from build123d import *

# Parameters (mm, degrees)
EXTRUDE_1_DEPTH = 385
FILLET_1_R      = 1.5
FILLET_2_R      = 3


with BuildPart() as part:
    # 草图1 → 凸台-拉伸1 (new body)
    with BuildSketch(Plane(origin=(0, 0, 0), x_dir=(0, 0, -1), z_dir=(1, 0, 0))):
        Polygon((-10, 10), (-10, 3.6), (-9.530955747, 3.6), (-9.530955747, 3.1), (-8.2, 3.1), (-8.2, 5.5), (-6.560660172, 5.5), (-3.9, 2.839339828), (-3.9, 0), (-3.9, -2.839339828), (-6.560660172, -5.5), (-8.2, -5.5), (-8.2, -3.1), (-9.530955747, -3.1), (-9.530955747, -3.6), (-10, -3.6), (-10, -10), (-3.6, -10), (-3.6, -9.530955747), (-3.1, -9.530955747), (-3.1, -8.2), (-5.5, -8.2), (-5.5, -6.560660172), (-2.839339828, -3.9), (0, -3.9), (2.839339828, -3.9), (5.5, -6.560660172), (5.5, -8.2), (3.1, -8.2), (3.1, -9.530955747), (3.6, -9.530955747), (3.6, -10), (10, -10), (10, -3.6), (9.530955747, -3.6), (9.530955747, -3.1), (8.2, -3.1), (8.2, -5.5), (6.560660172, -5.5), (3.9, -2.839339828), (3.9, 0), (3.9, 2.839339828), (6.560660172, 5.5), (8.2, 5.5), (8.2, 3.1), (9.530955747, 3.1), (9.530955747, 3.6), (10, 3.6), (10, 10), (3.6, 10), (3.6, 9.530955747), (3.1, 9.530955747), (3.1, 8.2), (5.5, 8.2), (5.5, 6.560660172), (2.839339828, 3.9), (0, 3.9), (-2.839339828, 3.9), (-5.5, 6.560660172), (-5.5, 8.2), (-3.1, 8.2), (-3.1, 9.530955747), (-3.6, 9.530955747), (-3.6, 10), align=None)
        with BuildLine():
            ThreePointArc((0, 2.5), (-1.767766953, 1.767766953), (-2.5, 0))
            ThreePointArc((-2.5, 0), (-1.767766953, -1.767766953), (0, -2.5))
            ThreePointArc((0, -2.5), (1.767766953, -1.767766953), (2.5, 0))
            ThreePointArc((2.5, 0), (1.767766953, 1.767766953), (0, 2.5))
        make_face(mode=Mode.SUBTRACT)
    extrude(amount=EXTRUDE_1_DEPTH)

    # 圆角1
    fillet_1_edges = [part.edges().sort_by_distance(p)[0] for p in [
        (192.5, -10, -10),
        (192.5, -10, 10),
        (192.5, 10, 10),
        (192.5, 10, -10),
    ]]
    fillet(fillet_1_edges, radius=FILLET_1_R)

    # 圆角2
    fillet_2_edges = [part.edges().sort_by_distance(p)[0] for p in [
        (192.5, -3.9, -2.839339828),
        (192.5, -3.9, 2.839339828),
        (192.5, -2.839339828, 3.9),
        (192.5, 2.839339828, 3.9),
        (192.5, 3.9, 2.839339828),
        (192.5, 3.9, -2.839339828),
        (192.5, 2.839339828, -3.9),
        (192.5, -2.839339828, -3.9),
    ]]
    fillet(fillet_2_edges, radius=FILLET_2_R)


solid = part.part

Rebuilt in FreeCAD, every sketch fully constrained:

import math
import FreeCAD as App
import Part
import Sketcher
Q = App.Units.Quantity


def edges_at(feature, points):
    """Names of the edges that pass closest to the given points."""
    edges = feature.Shape.Edges
    near = lambda p: min(range(len(edges)), key=lambda i: edges[i].distToShape(Part.Vertex(*p))[0])
    return sorted({f"Edge{near(p) + 1}" for p in points})

doc = App.newDocument("Part")
body = doc.addObject("PartDesign::Body", "Body")

# Sketch on YZ plane
sketch1 = body.newObject("Sketcher::SketchObject", "Sketch")
sketch1.AttachmentSupport = (doc.getObject("YZ_Plane"), [""])
sketch1.MapMode = "FlatFace"
sketch1.addGeometry([
    Part.LineSegment(App.Vector(10, 10, 0), App.Vector(3.6, 10, 0)),  # 0
    Part.LineSegment(App.Vector(3.6, 10, 0), App.Vector(3.6, 9.53, 0)),  # 1
    Part.LineSegment(App.Vector(3.6, 9.53, 0), App.Vector(3.1, 9.53, 0)),  # 2
    Part.LineSegment(App.Vector(3.1, 9.53, 0), App.Vector(3.1, 8.2, 0)),  # 3
    Part.LineSegment(App.Vector(3.1, 8.2, 0), App.Vector(5.5, 8.2, 0)),  # 4
    Part.LineSegment(App.Vector(5.5, 8.2, 0), App.Vector(5.5, 6.56, 0)),  # 5
    Part.LineSegment(App.Vector(5.5, 6.56, 0), App.Vector(2.84, 3.9, 0)),  # 6
    Part.LineSegment(App.Vector(2.84, 3.9, 0), App.Vector(-2.84, 3.9, 0)),  # 7
    Part.LineSegment(App.Vector(-2.84, 3.9, 0), App.Vector(-5.5, 6.56, 0)),  # 8
    Part.LineSegment(App.Vector(-5.5, 6.56, 0), App.Vector(-5.5, 8.2, 0)),  # 9
    Part.LineSegment(App.Vector(-5.5, 8.2, 0), App.Vector(-3.1, 8.2, 0)),  # 10
    Part.LineSegment(App.Vector(-3.1, 8.2, 0), App.Vector(-3.1, 9.53, 0)),  # 11
    Part.LineSegment(App.Vector(-3.1, 9.53, 0), App.Vector(-3.6, 9.53, 0)),  # 12
    Part.LineSegment(App.Vector(-3.6, 9.53, 0), App.Vector(-3.6, 10, 0)),  # 13
    Part.LineSegment(App.Vector(-3.6, 10, 0), App.Vector(-10, 10, 0)),  # 14
    Part.LineSegment(App.Vector(-10, 10, 0), App.Vector(-10, 3.6, 0)),  # 15
    Part.LineSegment(App.Vector(-10, 3.6, 0), App.Vector(-9.53, 3.6, 0)),  # 16
    Part.LineSegment(App.Vector(-9.53, 3.6, 0), App.Vector(-9.53, 3.1, 0)),  # 17
    Part.LineSegment(App.Vector(-9.53, 3.1, 0), App.Vector(-8.2, 3.1, 0)),  # 18
    Part.LineSegment(App.Vector(-8.2, 3.1, 0), App.Vector(-8.2, 5.5, 0)),  # 19
    Part.LineSegment(App.Vector(-8.2, 5.5, 0), App.Vector(-6.56, 5.5, 0)),  # 20
    Part.LineSegment(App.Vector(-6.56, 5.5, 0), App.Vector(-3.9, 2.84, 0)),  # 21
    Part.LineSegment(App.Vector(-3.9, 2.84, 0), App.Vector(-3.9, -2.84, 0)),  # 22
    Part.LineSegment(App.Vector(-3.9, -2.84, 0), App.Vector(-6.56, -5.5, 0)),  # 23
    Part.LineSegment(App.Vector(-6.56, -5.5, 0), App.Vector(-8.2, -5.5, 0)),  # 24
    Part.LineSegment(App.Vector(-8.2, -5.5, 0), App.Vector(-8.2, -3.1, 0)),  # 25
    Part.LineSegment(App.Vector(-8.2, -3.1, 0), App.Vector(-9.53, -3.1, 0)),  # 26
    Part.LineSegment(App.Vector(-9.53, -3.1, 0), App.Vector(-9.53, -3.6, 0)),  # 27
    Part.LineSegment(App.Vector(-9.53, -3.6, 0), App.Vector(-10, -3.6, 0)),  # 28
    Part.LineSegment(App.Vector(-10, -3.6, 0), App.Vector(-10, -10, 0)),  # 29
    Part.LineSegment(App.Vector(-10, -10, 0), App.Vector(-3.6, -10, 0)),  # 30
    Part.LineSegment(App.Vector(-3.6, -10, 0), App.Vector(-3.6, -9.53, 0)),  # 31
    Part.LineSegment(App.Vector(-3.6, -9.53, 0), App.Vector(-3.1, -9.53, 0)),  # 32
    Part.LineSegment(App.Vector(-3.1, -9.53, 0), App.Vector(-3.1, -8.2, 0)),  # 33
    Part.LineSegment(App.Vector(-3.1, -8.2, 0), App.Vector(-5.5, -8.2, 0)),  # 34
    Part.LineSegment(App.Vector(-5.5, -8.2, 0), App.Vector(-5.5, -6.56, 0)),  # 35
    Part.LineSegment(App.Vector(-5.5, -6.56, 0), App.Vector(-2.84, -3.9, 0)),  # 36
    Part.LineSegment(App.Vector(-2.84, -3.9, 0), App.Vector(2.84, -3.9, 0)),  # 37
    Part.LineSegment(App.Vector(2.84, -3.9, 0), App.Vector(5.5, -6.56, 0)),  # 38
    Part.LineSegment(App.Vector(5.5, -6.56, 0), App.Vector(5.5, -8.2, 0)),  # 39
    Part.LineSegment(App.Vector(5.5, -8.2, 0), App.Vector(3.1, -8.2, 0)),  # 40
    Part.LineSegment(App.Vector(3.1, -8.2, 0), App.Vector(3.1, -9.53, 0)),  # 41
    Part.LineSegment(App.Vector(3.1, -9.53, 0), App.Vector(3.6, -9.53, 0)),  # 42
    Part.LineSegment(App.Vector(3.6, -9.53, 0), App.Vector(3.6, -10, 0)),  # 43
    Part.LineSegment(App.Vector(3.6, -10, 0), App.Vector(10, -10, 0)),  # 44
    Part.LineSegment(App.Vector(10, -10, 0), App.Vector(10, -3.6, 0)),  # 45
    Part.LineSegment(App.Vector(10, -3.6, 0), App.Vector(9.53, -3.6, 0)),  # 46
    Part.LineSegment(App.Vector(9.53, -3.6, 0), App.Vector(9.53, -3.1, 0)),  # 47
    Part.LineSegment(App.Vector(9.53, -3.1, 0), App.Vector(8.2, -3.1, 0)),  # 48
    Part.LineSegment(App.Vector(8.2, -3.1, 0), App.Vector(8.2, -5.5, 0)),  # 49
    Part.LineSegment(App.Vector(8.2, -5.5, 0), App.Vector(6.56, -5.5, 0)),  # 50
    Part.LineSegment(App.Vector(6.56, -5.5, 0), App.Vector(3.9, -2.84, 0)),  # 51
    Part.LineSegment(App.Vector(3.9, -2.84, 0), App.Vector(3.9, 2.84, 0)),  # 52
    Part.LineSegment(App.Vector(3.9, 2.84, 0), App.Vector(6.56, 5.5, 0)),  # 53
    Part.LineSegment(App.Vector(6.56, 5.5, 0), App.Vector(8.2, 5.5, 0)),  # 54
    Part.LineSegment(App.Vector(8.2, 5.5, 0), App.Vector(8.2, 3.1, 0)),  # 55
    Part.LineSegment(App.Vector(8.2, 3.1, 0), App.Vector(9.53, 3.1, 0)),  # 56
    Part.LineSegment(App.Vector(9.53, 3.1, 0), App.Vector(9.53, 3.6, 0)),  # 57
    Part.LineSegment(App.Vector(9.53, 3.6, 0), App.Vector(10, 3.6, 0)),  # 58
    Part.LineSegment(App.Vector(10, 3.6, 0), App.Vector(10, 10, 0)),  # 59
    Part.ArcOfCircle(Part.Circle(App.Vector(0, 0, 0), App.Vector(0, 0, 1), 2.5), math.radians(0), math.radians(90)),  # 60
    Part.ArcOfCircle(Part.Circle(App.Vector(0, 0, 0), App.Vector(0, 0, 1), 2.5), math.radians(-90), math.radians(0)),  # 61
    Part.ArcOfCircle(Part.Circle(App.Vector(0, 0, 0), App.Vector(0, 0, 1), 2.5), math.radians(180), math.radians(270)),  # 62
    Part.ArcOfCircle(Part.Circle(App.Vector(0, 0, 0), App.Vector(0, 0, 1), 2.5), math.radians(90), math.radians(180)),  # 63
], False)
sketch1.addConstraint([
    Sketcher.Constraint("Coincident", 0, 2, 1, 1),
    Sketcher.Constraint("Coincident", 1, 2, 2, 1),
    Sketcher.Constraint("Coincident", 2, 2, 3, 1),
    Sketcher.Constraint("Coincident", 3, 2, 4, 1),
    Sketcher.Constraint("Coincident", 4, 2, 5, 1),
    Sketcher.Constraint("Coincident", 5, 2, 6, 1),
    Sketcher.Constraint("Coincident", 6, 2, 7, 1),
    Sketcher.Constraint("Coincident", 7, 2, 8, 1),
    Sketcher.Constraint("Coincident", 8, 2, 9, 1),
    Sketcher.Constraint("Coincident", 9, 2, 10, 1),
    Sketcher.Constraint("Coincident", 10, 2, 11, 1),
    Sketcher.Constraint("Coincident", 11, 2, 12, 1),
    Sketcher.Constraint("Coincident", 12, 2, 13, 1),
    Sketcher.Constraint("Coincident", 13, 2, 14, 1),
    Sketcher.Constraint("Coincident", 14, 2, 15, 1),
    Sketcher.Constraint("Coincident", 15, 2, 16, 1),
    Sketcher.Constraint("Coincident", 16, 2, 17, 1),
    Sketcher.Constraint("Coincident", 17, 2, 18, 1),
    Sketcher.Constraint("Coincident", 18, 2, 19, 1),
    Sketcher.Constraint("Coincident", 19, 2, 20, 1),
    Sketcher.Constraint("Coincident", 20, 2, 21, 1),
    Sketcher.Constraint("Coincident", 21, 2, 22, 1),
    Sketcher.Constraint("Coincident", 22, 2, 23, 1),
    Sketcher.Constraint("Coincident", 23, 2, 24, 1),
    Sketcher.Constraint("Coincident", 24, 2, 25, 1),
    Sketcher.Constraint("Coincident", 25, 2, 26, 1),
    Sketcher.Constraint("Coincident", 26, 2, 27, 1),
    Sketcher.Constraint("Coincident", 27, 2, 28, 1),
    Sketcher.Constraint("Coincident", 28, 2, 29, 1),
    Sketcher.Constraint("Coincident", 29, 2, 30, 1),
    Sketcher.Constraint("Coincident", 30, 2, 31, 1),
    Sketcher.Constraint("Coincident", 31, 2, 32, 1),
    Sketcher.Constraint("Coincident", 32, 2, 33, 1),
    Sketcher.Constraint("Coincident", 33, 2, 34, 1),
    Sketcher.Constraint("Coincident", 34, 2, 35, 1),
    Sketcher.Constraint("Coincident", 35, 2, 36, 1),
    Sketcher.Constraint("Coincident", 36, 2, 37, 1),
    Sketcher.Constraint("Coincident", 37, 2, 38, 1),
    Sketcher.Constraint("Coincident", 38, 2, 39, 1),
    Sketcher.Constraint("Coincident", 39, 2, 40, 1),
    Sketcher.Constraint("Coincident", 40, 2, 41, 1),
    Sketcher.Constraint("Coincident", 41, 2, 42, 1),
    Sketcher.Constraint("Coincident", 42, 2, 43, 1),
    Sketcher.Constraint("Coincident", 43, 2, 44, 1),
    Sketcher.Constraint("Coincident", 44, 2, 45, 1),
    Sketcher.Constraint("Coincident", 45, 2, 46, 1),
    Sketcher.Constraint("Coincident", 46, 2, 47, 1),
    Sketcher.Constraint("Coincident", 47, 2, 48, 1),
    Sketcher.Constraint("Coincident", 48, 2, 49, 1),
    Sketcher.Constraint("Coincident", 49, 2, 50, 1),
    Sketcher.Constraint("Coincident", 50, 2, 51, 1),
    Sketcher.Constraint("Coincident", 51, 2, 52, 1),
    Sketcher.Constraint("Coincident", 52, 2, 53, 1),
    Sketcher.Constraint("Coincident", 53, 2, 54, 1),
    Sketcher.Constraint("Coincident", 54, 2, 55, 1),
    Sketcher.Constraint("Coincident", 55, 2, 56, 1),
    Sketcher.Constraint("Coincident", 56, 2, 57, 1),
    Sketcher.Constraint("Coincident", 57, 2, 58, 1),
    Sketcher.Constraint("Coincident", 58, 2, 59, 1),
    Sketcher.Constraint("Coincident", 59, 2, 0, 1),
    Sketcher.Constraint("Tangent", 60, 1, 61, 2),
    Sketcher.Constraint("Tangent", 61, 1, 62, 2),
    Sketcher.Constraint("Tangent", 62, 1, 63, 2),
    Sketcher.Constraint("Tangent", 63, 1, 60, 2),
    Sketcher.Constraint("Horizontal", 0),
    Sketcher.Constraint("Vertical", 1),
    Sketcher.Constraint("Horizontal", 2),
    Sketcher.Constraint("Vertical", 3),
    Sketcher.Constraint("Horizontal", 4),
    Sketcher.Constraint("Vertical", 5),
    Sketcher.Constraint("Horizontal", 7),
    Sketcher.Constraint("Vertical", 9),
    Sketcher.Constraint("Horizontal", 10),
    Sketcher.Constraint("Vertical", 11),
    Sketcher.Constraint("Horizontal", 12),
    Sketcher.Constraint("Vertical", 13),
    Sketcher.Constraint("Horizontal", 14),
    Sketcher.Constraint("Vertical", 15),
    Sketcher.Constraint("Horizontal", 16),
    Sketcher.Constraint("Vertical", 17),
    Sketcher.Constraint("Horizontal", 18),
    Sketcher.Constraint("Vertical", 19),
    Sketcher.Constraint("Horizontal", 20),
    Sketcher.Constraint("Vertical", 22),
    Sketcher.Constraint("Horizontal", 24),
    Sketcher.Constraint("Vertical", 25),
    Sketcher.Constraint("Horizontal", 26),
    Sketcher.Constraint("Vertical", 27),
    Sketcher.Constraint("Horizontal", 28),
    Sketcher.Constraint("Vertical", 29),
    Sketcher.Constraint("Horizontal", 30),
    Sketcher.Constraint("Vertical", 31),
    Sketcher.Constraint("Horizontal", 32),
    Sketcher.Constraint("Vertical", 33),
    Sketcher.Constraint("Horizontal", 34),
    Sketcher.Constraint("Vertical", 35),
    Sketcher.Constraint("Horizontal", 37),
    Sketcher.Constraint("Vertical", 39),
    Sketcher.Constraint("Horizontal", 40),
    Sketcher.Constraint("Vertical", 41),
    Sketcher.Constraint("Horizontal", 42),
    Sketcher.Constraint("Vertical", 43),
    Sketcher.Constraint("Horizontal", 44),
    Sketcher.Constraint("Vertical", 45),
    Sketcher.Constraint("Horizontal", 46),
    Sketcher.Constraint("Vertical", 47),
    Sketcher.Constraint("Horizontal", 48),
    Sketcher.Constraint("Vertical", 49),
    Sketcher.Constraint("Horizontal", 50),
    Sketcher.Constraint("Vertical", 52),
    Sketcher.Constraint("Horizontal", 54),
    Sketcher.Constraint("Vertical", 55),
    Sketcher.Constraint("Horizontal", 56),
    Sketcher.Constraint("Vertical", 57),
    Sketcher.Constraint("Horizontal", 58),
    Sketcher.Constraint("Vertical", 59),
    Sketcher.Constraint("Coincident", 60, 3, -1, 1),
    Sketcher.Constraint("Equal", 60, 61),
    Sketcher.Constraint("Symmetric", 0, 2, 30, 2, -1, 1),
    Sketcher.Constraint("Symmetric", 2, 2, 32, 2, -1, 1),
    Sketcher.Constraint("Symmetric", 4, 2, 34, 2, -1, 1),
    Sketcher.Constraint("Symmetric", 6, 2, 36, 2, -1, 1),
    Sketcher.Constraint("Symmetric", 8, 2, 38, 2, -1, 1),
    Sketcher.Constraint("Symmetric", 10, 2, 40, 2, -1, 1),
    Sketcher.Constraint("Symmetric", 12, 2, 42, 2, -1, 1),
    Sketcher.Constraint("Symmetric", 14, 2, 44, 2, -1, 1),
    Sketcher.Constraint("Symmetric", 16, 2, 46, 2, -1, 1),
    Sketcher.Constraint("Symmetric", 18, 2, 48, 2, -1, 1),
    Sketcher.Constraint("Symmetric", 20, 2, 50, 2, -1, 1),
    Sketcher.Constraint("Symmetric", 21, 2, 51, 2, -1, 1),
    Sketcher.Constraint("Symmetric", 23, 2, 53, 2, -1, 1),
    Sketcher.Constraint("Symmetric", 25, 2, 55, 2, -1, 1),
    Sketcher.Constraint("Symmetric", 27, 2, 57, 2, -1, 1),
    Sketcher.Constraint("Symmetric", 5, 2, 8, 2, -2),
    Sketcher.Constraint("Symmetric", 3, 2, 10, 2, -2),
    Sketcher.Constraint("Symmetric", 1, 2, 12, 2, -2),
    Sketcher.Constraint("Symmetric", 29, 2, 44, 2, -2),
    Sketcher.Constraint("Symmetric", 27, 2, 46, 2, -2),
    Sketcher.Constraint("Symmetric", 25, 2, 48, 2, -2),
    Sketcher.Constraint("Symmetric", 23, 2, 50, 2, -2),
    Sketcher.Constraint("PointOnObject", 60, 1, -1),
    Sketcher.Constraint("PointOnObject", 61, 1, -2),
    Sketcher.Constraint("PointOnObject", 62, 1, -1),
    Sketcher.Constraint("PointOnObject", 63, 1, -2),
    Sketcher.Constraint("Perpendicular", 6, 8),
    Sketcher.Constraint("Parallel", 8, 21),
    Sketcher.Constraint("Perpendicular", 21, 23),
    Sketcher.Constraint("Parallel", 23, 36),
    Sketcher.Constraint("Perpendicular", 36, 38),
    Sketcher.Constraint("Perpendicular", 51, 53),
    Sketcher.Constraint("Horizontal", 22, 2, 51, 2),
    Sketcher.Constraint("Vertical", 45, 2, 58, 2),
    Sketcher.Constraint("Equal", 58, 1),
    Sketcher.Constraint("Equal", 56, 3),
    Sketcher.Constraint("Equal", 54, 5),
    Sketcher.Constraint("Equal", 44, 15),
    Sketcher.Constraint("Equal", 42, 17),
    Sketcher.Constraint("Equal", 40, 19),
    Sketcher.Constraint("Equal", 37, 22),
    Sketcher.Constraint("Equal", 8, 21),
    Sketcher.Constraint("Radius", 60, Q("2.5 mm")),
    Sketcher.Constraint("DistanceX", 0, 2, 0, 1, Q("6.4 mm")),
    Sketcher.Constraint("DistanceX", 2, 2, 2, 1, Q("0.5 mm")),
    Sketcher.Constraint("DistanceX", 4, 1, 4, 2, Q("2.4 mm")),
    Sketcher.Constraint("DistanceY", -1, 1, 0, 2, Q("10 mm")),
    Sketcher.Constraint("DistanceY", -1, 1, 3, 2, Q("8.2 mm")),
    Sketcher.Constraint("DistanceY", -1, 1, 6, 2, Q("3.9 mm")),
    Sketcher.Constraint("DistanceX", 7, 2, 7, 1, Q("5.67868 mm")),
    Sketcher.Constraint("DistanceX", 16, 1, 16, 2, Q("0.469044 mm")),
])
pad1 = body.newObject("PartDesign::Pad", "Pad")
pad1.Profile = sketch1
pad1.Length = 385
doc.recompute()

fillet = body.newObject("PartDesign::Fillet", "Fillet")
fillet.Base = (pad1, edges_at(pad1, [
    (192.5, -10, -10),
    (192.5, -10, 10),
    (192.5, 10, 10),
    (192.5, 10, -10),
]))
fillet.Radius = 1.5
doc.recompute()

fillet2 = body.newObject("PartDesign::Fillet", "Fillet001")
fillet2.Base = (fillet, edges_at(fillet, [
    (192.5, -3.9, -2.839),
    (192.5, -3.9, 2.839),
    (192.5, -2.839, 3.9),
    (192.5, 2.839, 3.9),
    (192.5, 3.9, 2.839),
    (192.5, 3.9, -2.839),
    (192.5, 2.839, -3.9),
    (192.5, -2.839, -3.9),
]))
fillet2.Radius = 3

doc.recompute()
